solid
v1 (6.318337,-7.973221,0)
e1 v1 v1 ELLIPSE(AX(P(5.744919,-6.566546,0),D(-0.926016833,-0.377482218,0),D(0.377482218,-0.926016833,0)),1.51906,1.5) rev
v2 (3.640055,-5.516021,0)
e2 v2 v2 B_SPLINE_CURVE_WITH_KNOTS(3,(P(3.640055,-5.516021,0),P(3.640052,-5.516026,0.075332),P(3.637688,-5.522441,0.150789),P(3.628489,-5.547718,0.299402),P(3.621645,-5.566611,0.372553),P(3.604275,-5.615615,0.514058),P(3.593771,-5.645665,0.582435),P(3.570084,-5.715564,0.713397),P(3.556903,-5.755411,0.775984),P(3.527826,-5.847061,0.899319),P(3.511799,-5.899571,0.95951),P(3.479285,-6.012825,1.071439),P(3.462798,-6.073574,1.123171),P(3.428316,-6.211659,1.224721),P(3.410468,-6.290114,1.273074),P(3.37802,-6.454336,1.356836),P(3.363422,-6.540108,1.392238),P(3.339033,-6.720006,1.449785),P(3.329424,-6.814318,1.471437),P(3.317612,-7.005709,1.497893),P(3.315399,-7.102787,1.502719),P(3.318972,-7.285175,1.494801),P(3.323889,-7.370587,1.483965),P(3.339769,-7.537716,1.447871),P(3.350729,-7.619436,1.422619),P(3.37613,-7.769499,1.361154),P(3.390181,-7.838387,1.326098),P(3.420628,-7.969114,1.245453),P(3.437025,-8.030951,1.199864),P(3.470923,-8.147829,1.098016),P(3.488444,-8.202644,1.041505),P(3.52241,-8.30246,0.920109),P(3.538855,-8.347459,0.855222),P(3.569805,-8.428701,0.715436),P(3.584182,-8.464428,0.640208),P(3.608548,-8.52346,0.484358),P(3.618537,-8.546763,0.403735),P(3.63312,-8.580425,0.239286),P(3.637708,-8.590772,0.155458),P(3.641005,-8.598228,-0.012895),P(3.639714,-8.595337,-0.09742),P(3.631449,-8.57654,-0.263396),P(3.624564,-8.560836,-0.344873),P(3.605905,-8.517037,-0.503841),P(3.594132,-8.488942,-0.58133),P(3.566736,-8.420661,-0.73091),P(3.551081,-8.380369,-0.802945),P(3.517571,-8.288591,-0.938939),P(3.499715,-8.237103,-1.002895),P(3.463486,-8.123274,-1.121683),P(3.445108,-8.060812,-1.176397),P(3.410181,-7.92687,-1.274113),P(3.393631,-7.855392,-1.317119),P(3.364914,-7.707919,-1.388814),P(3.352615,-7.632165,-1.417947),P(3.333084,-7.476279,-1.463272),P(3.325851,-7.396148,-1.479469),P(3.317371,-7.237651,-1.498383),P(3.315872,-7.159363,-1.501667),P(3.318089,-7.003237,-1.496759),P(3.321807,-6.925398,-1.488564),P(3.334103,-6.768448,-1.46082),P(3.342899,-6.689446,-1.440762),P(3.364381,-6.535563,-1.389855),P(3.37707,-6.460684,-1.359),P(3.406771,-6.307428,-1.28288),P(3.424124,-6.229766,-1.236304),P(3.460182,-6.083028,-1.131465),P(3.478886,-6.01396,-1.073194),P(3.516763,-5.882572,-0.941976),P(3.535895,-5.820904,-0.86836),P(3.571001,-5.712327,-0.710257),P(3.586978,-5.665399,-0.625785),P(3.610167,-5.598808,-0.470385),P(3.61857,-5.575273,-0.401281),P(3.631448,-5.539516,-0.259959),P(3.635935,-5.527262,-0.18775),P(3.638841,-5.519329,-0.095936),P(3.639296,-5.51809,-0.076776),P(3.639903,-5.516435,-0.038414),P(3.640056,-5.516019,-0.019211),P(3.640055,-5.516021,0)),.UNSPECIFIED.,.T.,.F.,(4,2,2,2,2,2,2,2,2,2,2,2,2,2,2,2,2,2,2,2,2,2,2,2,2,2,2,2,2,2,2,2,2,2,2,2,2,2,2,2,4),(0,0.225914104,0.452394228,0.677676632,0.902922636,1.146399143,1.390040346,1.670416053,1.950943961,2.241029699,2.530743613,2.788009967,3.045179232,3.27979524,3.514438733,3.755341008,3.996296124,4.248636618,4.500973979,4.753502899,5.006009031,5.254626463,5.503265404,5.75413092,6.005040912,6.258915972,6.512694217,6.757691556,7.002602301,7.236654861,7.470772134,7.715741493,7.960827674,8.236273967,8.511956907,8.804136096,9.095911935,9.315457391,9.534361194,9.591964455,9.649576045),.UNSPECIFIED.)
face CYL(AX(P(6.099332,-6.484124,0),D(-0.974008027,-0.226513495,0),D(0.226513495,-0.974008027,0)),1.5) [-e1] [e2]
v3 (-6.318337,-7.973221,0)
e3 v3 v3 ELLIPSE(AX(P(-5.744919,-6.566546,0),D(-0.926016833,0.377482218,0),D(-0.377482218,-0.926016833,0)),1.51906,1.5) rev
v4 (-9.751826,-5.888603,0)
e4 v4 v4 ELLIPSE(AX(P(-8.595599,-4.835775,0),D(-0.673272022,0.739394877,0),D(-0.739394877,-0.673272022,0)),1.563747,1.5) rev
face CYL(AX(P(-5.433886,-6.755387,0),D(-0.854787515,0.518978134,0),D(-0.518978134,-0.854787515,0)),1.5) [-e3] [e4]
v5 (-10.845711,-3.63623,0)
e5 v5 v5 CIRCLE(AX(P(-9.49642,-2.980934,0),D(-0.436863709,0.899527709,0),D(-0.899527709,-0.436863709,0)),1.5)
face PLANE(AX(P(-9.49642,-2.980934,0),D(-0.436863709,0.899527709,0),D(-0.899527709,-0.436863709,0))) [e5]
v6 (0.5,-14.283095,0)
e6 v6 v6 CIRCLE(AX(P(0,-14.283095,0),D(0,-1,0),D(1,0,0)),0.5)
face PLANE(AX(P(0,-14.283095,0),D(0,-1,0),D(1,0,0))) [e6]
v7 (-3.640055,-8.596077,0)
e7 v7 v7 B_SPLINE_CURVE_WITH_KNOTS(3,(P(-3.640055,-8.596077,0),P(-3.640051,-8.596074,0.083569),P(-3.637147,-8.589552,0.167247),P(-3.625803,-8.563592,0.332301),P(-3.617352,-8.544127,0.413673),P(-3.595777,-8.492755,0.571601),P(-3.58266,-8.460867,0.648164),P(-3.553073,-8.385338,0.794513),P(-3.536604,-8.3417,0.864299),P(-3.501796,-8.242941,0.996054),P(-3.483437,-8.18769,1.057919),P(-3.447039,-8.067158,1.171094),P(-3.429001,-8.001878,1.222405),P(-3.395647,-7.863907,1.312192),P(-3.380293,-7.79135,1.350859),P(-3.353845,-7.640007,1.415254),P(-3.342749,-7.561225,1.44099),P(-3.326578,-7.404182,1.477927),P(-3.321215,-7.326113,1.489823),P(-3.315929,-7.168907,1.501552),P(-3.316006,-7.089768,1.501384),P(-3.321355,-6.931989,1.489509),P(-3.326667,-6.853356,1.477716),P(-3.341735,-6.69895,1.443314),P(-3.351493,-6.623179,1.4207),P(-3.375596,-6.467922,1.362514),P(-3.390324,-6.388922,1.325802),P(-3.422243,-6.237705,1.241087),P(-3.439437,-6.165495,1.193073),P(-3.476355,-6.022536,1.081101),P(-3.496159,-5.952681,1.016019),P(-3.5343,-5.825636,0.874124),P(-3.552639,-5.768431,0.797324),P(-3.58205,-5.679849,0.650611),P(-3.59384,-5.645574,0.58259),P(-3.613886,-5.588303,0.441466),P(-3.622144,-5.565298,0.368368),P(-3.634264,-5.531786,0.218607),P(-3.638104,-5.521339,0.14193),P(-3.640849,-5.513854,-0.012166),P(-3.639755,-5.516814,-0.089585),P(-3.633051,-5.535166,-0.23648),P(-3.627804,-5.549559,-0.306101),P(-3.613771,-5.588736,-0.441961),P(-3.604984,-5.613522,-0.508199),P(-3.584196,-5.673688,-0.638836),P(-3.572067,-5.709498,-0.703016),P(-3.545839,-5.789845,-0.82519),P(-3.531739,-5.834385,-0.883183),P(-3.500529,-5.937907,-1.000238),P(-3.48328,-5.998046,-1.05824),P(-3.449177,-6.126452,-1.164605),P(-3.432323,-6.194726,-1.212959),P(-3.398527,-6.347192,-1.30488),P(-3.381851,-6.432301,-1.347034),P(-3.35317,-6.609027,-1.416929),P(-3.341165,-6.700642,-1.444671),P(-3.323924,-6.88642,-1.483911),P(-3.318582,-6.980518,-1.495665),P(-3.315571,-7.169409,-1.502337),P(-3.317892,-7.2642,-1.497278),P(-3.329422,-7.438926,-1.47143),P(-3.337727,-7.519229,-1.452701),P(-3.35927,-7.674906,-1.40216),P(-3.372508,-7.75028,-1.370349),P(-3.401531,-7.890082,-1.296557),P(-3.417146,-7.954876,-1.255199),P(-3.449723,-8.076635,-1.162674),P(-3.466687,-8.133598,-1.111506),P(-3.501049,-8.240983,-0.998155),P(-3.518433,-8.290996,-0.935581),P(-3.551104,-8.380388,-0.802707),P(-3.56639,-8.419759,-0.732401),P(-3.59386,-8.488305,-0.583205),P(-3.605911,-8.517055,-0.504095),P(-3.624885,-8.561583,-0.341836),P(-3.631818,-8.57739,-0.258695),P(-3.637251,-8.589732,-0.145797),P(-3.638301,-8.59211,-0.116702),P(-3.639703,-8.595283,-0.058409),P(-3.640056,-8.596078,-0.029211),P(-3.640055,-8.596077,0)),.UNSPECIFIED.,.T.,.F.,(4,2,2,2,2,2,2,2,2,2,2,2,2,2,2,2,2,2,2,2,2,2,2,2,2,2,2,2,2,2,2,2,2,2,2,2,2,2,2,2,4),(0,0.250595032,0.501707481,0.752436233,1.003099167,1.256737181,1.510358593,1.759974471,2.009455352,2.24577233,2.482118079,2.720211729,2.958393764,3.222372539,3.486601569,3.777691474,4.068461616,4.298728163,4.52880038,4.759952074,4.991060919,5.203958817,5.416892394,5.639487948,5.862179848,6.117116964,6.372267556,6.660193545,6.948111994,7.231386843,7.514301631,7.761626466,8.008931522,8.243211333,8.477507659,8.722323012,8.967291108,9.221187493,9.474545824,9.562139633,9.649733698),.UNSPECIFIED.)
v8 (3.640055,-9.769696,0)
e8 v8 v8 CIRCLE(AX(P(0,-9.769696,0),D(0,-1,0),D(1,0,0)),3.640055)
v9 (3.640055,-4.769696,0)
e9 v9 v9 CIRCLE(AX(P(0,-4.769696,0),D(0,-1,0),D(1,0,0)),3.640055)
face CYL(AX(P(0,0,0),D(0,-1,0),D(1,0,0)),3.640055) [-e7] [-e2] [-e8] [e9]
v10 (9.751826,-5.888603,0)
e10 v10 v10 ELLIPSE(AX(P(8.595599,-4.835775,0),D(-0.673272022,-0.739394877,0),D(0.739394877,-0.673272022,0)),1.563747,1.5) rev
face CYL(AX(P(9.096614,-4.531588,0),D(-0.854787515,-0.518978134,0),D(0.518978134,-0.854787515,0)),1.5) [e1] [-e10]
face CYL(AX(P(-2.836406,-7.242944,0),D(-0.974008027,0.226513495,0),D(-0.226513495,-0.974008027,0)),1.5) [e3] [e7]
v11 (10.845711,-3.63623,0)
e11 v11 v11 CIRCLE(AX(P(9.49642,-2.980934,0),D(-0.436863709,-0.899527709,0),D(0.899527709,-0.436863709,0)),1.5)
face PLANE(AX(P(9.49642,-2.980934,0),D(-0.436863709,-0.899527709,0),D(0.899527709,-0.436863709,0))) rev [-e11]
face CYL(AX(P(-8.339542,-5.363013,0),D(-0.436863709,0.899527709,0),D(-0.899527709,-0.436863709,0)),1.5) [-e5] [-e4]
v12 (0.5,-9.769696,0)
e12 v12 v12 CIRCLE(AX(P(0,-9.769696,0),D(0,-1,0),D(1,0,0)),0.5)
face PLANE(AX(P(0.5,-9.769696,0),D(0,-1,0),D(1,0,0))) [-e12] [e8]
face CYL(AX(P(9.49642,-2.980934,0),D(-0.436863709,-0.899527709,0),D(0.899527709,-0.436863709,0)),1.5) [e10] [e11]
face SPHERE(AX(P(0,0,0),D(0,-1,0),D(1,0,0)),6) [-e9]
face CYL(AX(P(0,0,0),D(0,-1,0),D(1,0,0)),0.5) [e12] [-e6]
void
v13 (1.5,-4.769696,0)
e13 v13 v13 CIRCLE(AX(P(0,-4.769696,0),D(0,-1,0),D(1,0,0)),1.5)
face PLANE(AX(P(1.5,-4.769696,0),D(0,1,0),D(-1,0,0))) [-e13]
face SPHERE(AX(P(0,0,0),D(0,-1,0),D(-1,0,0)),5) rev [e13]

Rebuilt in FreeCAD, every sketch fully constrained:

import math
import FreeCAD as App
import Part
import Sketcher
from FreeCAD import Vector

doc = App.newDocument("Part")
body = doc.addObject("PartDesign::Body", "Body")

sketch1 = doc.addObject("Sketcher::SketchObject", "Sketch")
body.addObject(sketch1)
sketch1.AttachmentSupport = (doc.XY_Plane, [""])
sketch1.MapMode = "FlatFace"
sketch1.addGeometry([
    Part.LineSegment(Vector(0, 6, 0), Vector(0, 5, 0)),
    Part.ArcOfCircle(Part.Circle(Vector(0, 0, 0), Vector(0, 0, 1), 5), math.radians(-73), math.radians(90)),
    Part.LineSegment(Vector(1.5, -4.8, 0), Vector(0, -4.8, 0)),
    Part.LineSegment(Vector(0, -4.8, 0), Vector(0, -14.3, 0)),
    Part.LineSegment(Vector(0, -14.3, 0), Vector(0.5, -14.3, 0)),
    Part.LineSegment(Vector(0.5, -14.3, 0), Vector(0.5, -9.8, 0)),
    Part.LineSegment(Vector(0.5, -9.8, 0), Vector(3.6, -9.8, 0)),
    Part.LineSegment(Vector(3.6, -9.8, 0), Vector(3.6, -4.8, 0)),
    Part.ArcOfCircle(Part.Circle(Vector(0, 0, 0), Vector(0, 0, 1), 6), math.radians(-53), math.radians(90)),
], False)
sketch1.addConstraint([
    Sketcher.Constraint("Coincident", 0, 2, 1, 2),
    Sketcher.Constraint("Coincident", 1, 1, 2, 1),
    Sketcher.Constraint("Coincident", 2, 2, 3, 1),
    Sketcher.Constraint("Coincident", 3, 2, 4, 1),
    Sketcher.Constraint("Coincident", 4, 2, 5, 1),
    Sketcher.Constraint("Coincident", 5, 2, 6, 1),
    Sketcher.Constraint("Coincident", 6, 2, 7, 1),
    Sketcher.Constraint("Coincident", 7, 2, 8, 1),
    Sketcher.Constraint("Coincident", 8, 2, 0, 1),
    Sketcher.Constraint("Vertical", 0),
    Sketcher.Constraint("Horizontal", 2),
    Sketcher.Constraint("Vertical", 3),
    Sketcher.Constraint("Horizontal", 4),
    Sketcher.Constraint("Vertical", 5),
    Sketcher.Constraint("Horizontal", 6),
    Sketcher.Constraint("Vertical", 7),
    Sketcher.Constraint("Coincident", 1, 3, -1, 1),
    Sketcher.Constraint("Coincident", 8, 3, -1, 1),
    Sketcher.Constraint("PointOnObject", 0, 2, -2),
    Sketcher.Constraint("PointOnObject", 2, 2, -2),
    Sketcher.Constraint("Horizontal", 2, 2, 7, 2),
    Sketcher.Constraint("Radius", 1, 5.0),
    Sketcher.Constraint("Radius", 8, 6.0),
    Sketcher.Constraint("DistanceY", 7, 1, 7, 2, 5.0),
    Sketcher.Constraint("DistanceX", 2, 2, 2, 1, 1.5),
    Sketcher.Constraint("DistanceX", 4, 1, 4, 2, 0.5),
    Sketcher.Constraint("DistanceY", 3, 2, 3, 1, 9.513399),
])
revolution = doc.addObject("PartDesign::Revolution", "Revolution")
body.addObject(revolution)
revolution.Profile = sketch1
revolution.ReferenceAxis = (sketch1, ["V_Axis"])
revolution.Angle = 360

sketch2 = doc.addObject("Sketcher::SketchObject", "Sketch001")
body.addObject(sketch2)
sketch2.Placement = App.Placement(Vector(9.49642, -2.980934, 0), App.Rotation(Vector(-0.899527709, 0.436863709, 0), Vector(0, 0, -1), Vector(-0.436863709, -0.899527709, 0), "ZXY"))
sketch2.addGeometry(Part.Circle(Vector(0, 0, 0), Vector(0, 0, 1), 1.5), False)
sketch2.addConstraint([
    Sketcher.Constraint("Coincident", 0, 3, -1, 1),
    Sketcher.Constraint("Diameter", 0, 3.0),
])

sketch3 = doc.addObject("Sketcher::SketchObject", "Sketch002")
body.addObject(sketch3)
sketch3.AttachmentSupport = (doc.XY_Plane, [""])
sketch3.MapMode = "FlatFace"
sketch3.addGeometry([
    Part.LineSegment(Vector(9.5, -3, 0), Vector(8.6, -4.8, 0)),
    Part.LineSegment(Vector(8.6, -4.8, 0), Vector(5.7, -6.6, 0)),
    Part.LineSegment(Vector(5.7, -6.6, 0), Vector(3.1, -7.2, 0)),
    Part.LineSegment(Vector(3.1, -7.2, 0), Vector(-3.1, -7.2, 0)),
    Part.LineSegment(Vector(-3.1, -7.2, 0), Vector(-5.7, -6.6, 0)),
    Part.LineSegment(Vector(-5.7, -6.6, 0), Vector(-8.6, -4.8, 0)),
    Part.LineSegment(Vector(-8.6, -4.8, 0), Vector(-9.5, -3, 0)),
], False)
sketch3.addConstraint([
    Sketcher.Constraint("Coincident", 0, 2, 1, 1),
    Sketcher.Constraint("Coincident", 1, 2, 2, 1),
    Sketcher.Constraint("Coincident", 2, 2, 3, 1),
    Sketcher.Constraint("Coincident", 3, 2, 4, 1),
    Sketcher.Constraint("Coincident", 4, 2, 5, 1),
    Sketcher.Constraint("Coincident", 5, 2, 6, 1),
    Sketcher.Constraint("Horizontal", 3),
    Sketcher.Constraint("Symmetric", 1, 2, 4, 2, -2),
    Sketcher.Constraint("Symmetric", 0, 2, 5, 2, -2),
    Sketcher.Constraint("Symmetric", 0, 1, 6, 2, -2),
    Sketcher.Constraint("Equal", 2, 4),
    Sketcher.Constraint("DistanceX", 3, 2, 3, 1, 6.23644),
    Sketcher.Constraint("DistanceX", -1, 1, 0, 2, 8.595599),
    Sketcher.Constraint("DistanceX", 1, 2, 0, 1, 3.751501),
    Sketcher.Constraint("DistanceX", 2, 2, 1, 2, 2.626699),
    Sketcher.Constraint("Distance", 1, 3.334958),
    Sketcher.Constraint("DistanceY", 0, 2, 0, 1, 1.854841),
    Sketcher.Constraint("DistanceY", 2, 2, 1, 2, 0.61086),
    Sketcher.Constraint("DistanceY", 0, 1, -1, 1, 2.980934),
])
doc.recompute()

additivepipe = doc.addObject("PartDesign::AdditivePipe", "AdditivePipe")
body.addObject(additivepipe)
additivepipe.Profile = sketch2
additivepipe.Spine = (sketch3, ["Edge1", "Edge2", "Edge3", "Edge4", "Edge5", "Edge6", "Edge7"])
additivepipe.Transition = "Right corner"

doc.recompute()
